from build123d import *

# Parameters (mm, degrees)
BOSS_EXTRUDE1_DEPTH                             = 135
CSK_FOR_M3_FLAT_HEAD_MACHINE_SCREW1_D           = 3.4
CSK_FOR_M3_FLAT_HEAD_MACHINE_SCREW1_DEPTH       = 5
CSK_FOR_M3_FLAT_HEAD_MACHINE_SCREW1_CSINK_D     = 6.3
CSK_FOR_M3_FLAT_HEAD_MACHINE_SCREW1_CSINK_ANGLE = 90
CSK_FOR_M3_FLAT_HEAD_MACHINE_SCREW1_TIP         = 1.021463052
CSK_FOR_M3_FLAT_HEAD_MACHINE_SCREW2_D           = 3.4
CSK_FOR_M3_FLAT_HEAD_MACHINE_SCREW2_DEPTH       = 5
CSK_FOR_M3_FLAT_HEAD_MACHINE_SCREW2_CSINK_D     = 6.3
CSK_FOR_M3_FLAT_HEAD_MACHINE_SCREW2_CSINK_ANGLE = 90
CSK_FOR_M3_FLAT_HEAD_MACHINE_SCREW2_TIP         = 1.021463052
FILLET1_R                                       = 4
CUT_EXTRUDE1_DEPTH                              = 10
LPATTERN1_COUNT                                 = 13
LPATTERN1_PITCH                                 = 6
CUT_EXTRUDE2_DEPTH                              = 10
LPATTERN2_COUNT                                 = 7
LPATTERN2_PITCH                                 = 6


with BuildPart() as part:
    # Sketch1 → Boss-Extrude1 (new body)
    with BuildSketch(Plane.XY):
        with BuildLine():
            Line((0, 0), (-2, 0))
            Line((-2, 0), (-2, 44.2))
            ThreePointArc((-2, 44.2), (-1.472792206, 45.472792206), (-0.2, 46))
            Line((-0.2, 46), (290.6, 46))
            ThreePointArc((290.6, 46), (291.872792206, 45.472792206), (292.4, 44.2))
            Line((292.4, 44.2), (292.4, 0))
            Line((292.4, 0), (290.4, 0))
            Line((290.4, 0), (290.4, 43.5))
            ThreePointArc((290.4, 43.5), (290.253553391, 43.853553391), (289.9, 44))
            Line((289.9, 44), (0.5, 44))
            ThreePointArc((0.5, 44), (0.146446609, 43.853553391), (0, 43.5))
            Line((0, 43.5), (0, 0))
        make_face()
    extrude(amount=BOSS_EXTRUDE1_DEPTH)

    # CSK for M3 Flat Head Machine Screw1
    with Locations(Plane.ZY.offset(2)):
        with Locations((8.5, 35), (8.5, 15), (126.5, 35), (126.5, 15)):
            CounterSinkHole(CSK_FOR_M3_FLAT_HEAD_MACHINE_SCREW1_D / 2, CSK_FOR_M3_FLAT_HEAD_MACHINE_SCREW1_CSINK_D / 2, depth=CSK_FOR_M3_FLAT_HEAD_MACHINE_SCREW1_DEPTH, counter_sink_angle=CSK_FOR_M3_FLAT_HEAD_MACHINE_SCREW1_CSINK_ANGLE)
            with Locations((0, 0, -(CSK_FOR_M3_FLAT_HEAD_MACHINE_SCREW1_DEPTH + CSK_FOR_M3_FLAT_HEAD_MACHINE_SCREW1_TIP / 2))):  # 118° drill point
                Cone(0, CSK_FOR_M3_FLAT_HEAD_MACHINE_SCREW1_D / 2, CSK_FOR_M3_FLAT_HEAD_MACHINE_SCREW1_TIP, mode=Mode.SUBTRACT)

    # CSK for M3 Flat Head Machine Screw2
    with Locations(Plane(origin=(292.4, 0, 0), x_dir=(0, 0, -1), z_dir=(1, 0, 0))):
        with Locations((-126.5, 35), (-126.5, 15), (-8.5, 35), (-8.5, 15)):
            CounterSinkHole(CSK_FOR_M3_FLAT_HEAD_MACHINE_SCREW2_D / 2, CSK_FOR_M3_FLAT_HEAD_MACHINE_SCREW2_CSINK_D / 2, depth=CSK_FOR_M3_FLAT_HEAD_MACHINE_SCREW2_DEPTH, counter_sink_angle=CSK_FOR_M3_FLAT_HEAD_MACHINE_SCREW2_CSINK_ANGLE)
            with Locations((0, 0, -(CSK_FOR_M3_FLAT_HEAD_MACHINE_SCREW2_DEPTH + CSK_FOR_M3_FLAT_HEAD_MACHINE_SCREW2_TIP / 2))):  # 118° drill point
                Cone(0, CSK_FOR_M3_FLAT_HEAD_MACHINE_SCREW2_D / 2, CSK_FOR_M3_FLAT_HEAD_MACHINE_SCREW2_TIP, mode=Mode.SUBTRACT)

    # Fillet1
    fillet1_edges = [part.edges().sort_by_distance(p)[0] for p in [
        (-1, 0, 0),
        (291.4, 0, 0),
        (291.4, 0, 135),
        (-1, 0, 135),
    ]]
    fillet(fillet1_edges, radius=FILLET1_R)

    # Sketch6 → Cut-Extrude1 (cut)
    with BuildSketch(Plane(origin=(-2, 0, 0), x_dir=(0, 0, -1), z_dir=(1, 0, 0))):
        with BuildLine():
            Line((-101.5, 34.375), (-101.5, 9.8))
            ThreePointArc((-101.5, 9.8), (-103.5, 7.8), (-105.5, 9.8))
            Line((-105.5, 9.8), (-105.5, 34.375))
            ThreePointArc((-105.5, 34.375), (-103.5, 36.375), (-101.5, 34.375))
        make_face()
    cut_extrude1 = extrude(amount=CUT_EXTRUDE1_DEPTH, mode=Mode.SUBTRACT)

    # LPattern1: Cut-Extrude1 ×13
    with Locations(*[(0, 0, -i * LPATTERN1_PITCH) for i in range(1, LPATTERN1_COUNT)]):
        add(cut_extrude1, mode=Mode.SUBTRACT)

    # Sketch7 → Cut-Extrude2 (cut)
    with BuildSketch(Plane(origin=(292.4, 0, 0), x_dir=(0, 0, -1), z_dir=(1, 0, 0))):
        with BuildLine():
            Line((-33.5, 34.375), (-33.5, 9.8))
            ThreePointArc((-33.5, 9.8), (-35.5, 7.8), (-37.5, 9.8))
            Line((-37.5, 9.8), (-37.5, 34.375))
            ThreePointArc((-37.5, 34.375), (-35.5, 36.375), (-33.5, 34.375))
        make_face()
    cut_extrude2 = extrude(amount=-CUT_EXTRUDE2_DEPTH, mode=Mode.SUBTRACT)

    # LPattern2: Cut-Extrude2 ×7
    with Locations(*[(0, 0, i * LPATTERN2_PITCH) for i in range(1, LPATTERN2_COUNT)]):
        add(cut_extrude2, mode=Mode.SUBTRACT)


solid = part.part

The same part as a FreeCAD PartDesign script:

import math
import FreeCAD as App
import Part
import Sketcher

V = App.Vector


def edges_at(feature, points):
    """Names of the edges that pass closest to the given points."""
    edges = feature.Shape.Edges
    near = lambda p: min(range(len(edges)), key=lambda i: edges[i].distToShape(Part.Vertex(*p))[0])
    return sorted({f"Edge{near(p) + 1}" for p in points})

doc = App.newDocument("Part")
params = doc.addObject("Spreadsheet::Sheet", "Params")
for row, (alias, value) in enumerate([
    ("sketch1_radius", "0.5 mm"),
    ("sketch1_radius2", "1.8 mm"),
    ("sketch1_width", "2 mm"),
    ("sketch1_width2", "289.4 mm"),
    ("sketch1_height", "43.5 mm"),
    ("pad1_length", "135 mm"),
    ("sketch2_diameter", "3.4 mm"),
    ("hole_diameter", "3.4 mm"),
    ("hole_depth", "5 mm"),
    ("hole_csink_diameter", "6.3 mm"),
    ("sketch3_diameter", "3.4 mm"),
    ("hole2_diameter", "3.4 mm"),
    ("hole2_depth", "5 mm"),
    ("hole2_csink_diameter", "6.3 mm"),
    ("fillet_radius", "4 mm"),
    ("sketch4_radius", "2 mm"),
    ("pocket1_length", "10 mm"),
    ("linearpattern_pitch", "6 mm"),
    ("sketch5_radius", "2 mm"),
    ("pocket2_length", "10 mm"),
    ("linearpattern2_pitch", "6 mm"),
], start=1):
    params.set(f"A{row}", alias)
    params.set(f"B{row}", "=" + value)
    params.setAlias(f"B{row}", alias)

body = doc.addObject("PartDesign::Body", "Body")

sketch1 = doc.addObject("Sketcher::SketchObject", "Sketch")
body.addObject(sketch1)
sketch1.AttachmentSupport = (doc.XY_Plane, [""])
sketch1.MapMode = "FlatFace"
sketch1.addGeometry(Part.LineSegment(V(-2, 0, 0), V(0, 0, 0)), False)
sketch1.addGeometry(Part.LineSegment(V(0, 0, 0), V(0, 43.5, 0)), False)
sketch1.addGeometry(Part.ArcOfCircle(Part.Circle(V(0.5, 43.5, 0), V(0, 0, 1), 0.5), math.radians(90), math.radians(180)), False)
sketch1.addGeometry(Part.LineSegment(V(0.5, 44, 0), V(289.9, 44, 0)), False)
sketch1.addGeometry(Part.ArcOfCircle(Part.Circle(V(289.9, 43.5, 0), V(0, 0, 1), 0.5), math.radians(0), math.radians(90)), False)
sketch1.addGeometry(Part.LineSegment(V(290.4, 43.5, 0), V(290.4, 0, 0)), False)
sketch1.addGeometry(Part.LineSegment(V(290.4, 0, 0), V(292.4, 0, 0)), False)
sketch1.addGeometry(Part.LineSegment(V(292.4, 0, 0), V(292.4, 44.2, 0)), False)
sketch1.addGeometry(Part.ArcOfCircle(Part.Circle(V(290.6, 44.2, 0), V(0, 0, 1), 1.8), math.radians(0), math.radians(90)), False)
sketch1.addGeometry(Part.LineSegment(V(290.6, 46, 0), V(-0.2, 46, 0)), False)
sketch1.addGeometry(Part.ArcOfCircle(Part.Circle(V(-0.2, 44.2, 0), V(0, 0, 1), 1.8), math.radians(90), math.radians(180)), False)
sketch1.addGeometry(Part.LineSegment(V(-2, 44.2, 0), V(-2, 0, 0)), False)
sketch1.addConstraint(Sketcher.Constraint("Coincident", 0, 2, 1, 1))
sketch1.addConstraint(Sketcher.Constraint("Tangent", 1, 2, 2, 2))
sketch1.addConstraint(Sketcher.Constraint("Tangent", 2, 1, 3, 1))
sketch1.addConstraint(Sketcher.Constraint("Tangent", 3, 2, 4, 2))
sketch1.addConstraint(Sketcher.Constraint("Tangent", 4, 1, 5, 1))
sketch1.addConstraint(Sketcher.Constraint("Coincident", 5, 2, 6, 1))
sketch1.addConstraint(Sketcher.Constraint("Coincident", 6, 2, 7, 1))
sketch1.addConstraint(Sketcher.Constraint("Tangent", 7, 2, 8, 1))
sketch1.addConstraint(Sketcher.Constraint("Tangent", 8, 2, 9, 1))
sketch1.addConstraint(Sketcher.Constraint("Tangent", 9, 2, 10, 1))
sketch1.addConstraint(Sketcher.Constraint("Tangent", 10, 2, 11, 1))
sketch1.addConstraint(Sketcher.Constraint("Coincident", 11, 2, 0, 1))
sketch1.addConstraint(Sketcher.Constraint("Horizontal", 0))
sketch1.addConstraint(Sketcher.Constraint("Vertical", 1))
sketch1.addConstraint(Sketcher.Constraint("Horizontal", 3))
sketch1.addConstraint(Sketcher.Constraint("Vertical", 5))
sketch1.addConstraint(Sketcher.Constraint("Horizontal", 6))
sketch1.addConstraint(Sketcher.Constraint("Vertical", 7))
sketch1.addConstraint(Sketcher.Constraint("Horizontal", 9))
sketch1.addConstraint(Sketcher.Constraint("Vertical", 11))
sketch1.addConstraint(Sketcher.Constraint("Coincident", 0, 2, -1, 1))
sketch1.addConstraint(Sketcher.Constraint("Equal", 2, 4))
sketch1.addConstraint(Sketcher.Constraint("Equal", 8, 10))
sketch1.addConstraint(Sketcher.Constraint("PointOnObject", 5, 2, -1))
sketch1.addConstraint(Sketcher.Constraint("Equal", 0, 6))
sketch1.addConstraint(Sketcher.Constraint("Radius", 2, 0.5))
sketch1.addConstraint(Sketcher.Constraint("Radius", 8, 1.8))
sketch1.addConstraint(Sketcher.Constraint("DistanceX", 0, 1, 0, 2, 2.0))
sketch1.addConstraint(Sketcher.Constraint("DistanceX", 3, 1, 3, 2, 289.4))
sketch1.addConstraint(Sketcher.Constraint("DistanceY", 1, 1, 1, 2, 43.5))
sketch1.addConstraint(Sketcher.Constraint("DistanceY", 7, 1, 7, 2, 44.2))
sketch1.setExpression("Constraints[25]", "Params.sketch1_radius")
sketch1.setExpression("Constraints[26]", "Params.sketch1_radius2")
sketch1.setExpression("Constraints[27]", "Params.sketch1_width")
sketch1.setExpression("Constraints[28]", "Params.sketch1_width2")
sketch1.setExpression("Constraints[29]", "Params.sketch1_height")
pad1 = doc.addObject("PartDesign::Pad", "Pad")
body.addObject(pad1)
pad1.Profile = sketch1
pad1.setExpression("Length", "Params.pad1_length")

sketch2 = doc.addObject("Sketcher::SketchObject", "Sketch001")
body.addObject(sketch2)
sketch2.AttachmentSupport = (doc.YZ_Plane, [""])
sketch2.MapMode = "FlatFace"
sketch2.AttachmentOffset = App.Placement(V(0, 0, -2), App.Rotation())
sketch2.addGeometry(Part.Circle(V(35, 8.5, 0), V(0, 0, 1), 1.7), False)
sketch2.addGeometry(Part.Circle(V(15, 8.5, 0), V(0, 0, 1), 1.7), False)
sketch2.addGeometry(Part.Circle(V(35, 126.5, 0), V(0, 0, 1), 1.7), False)
sketch2.addGeometry(Part.Circle(V(15, 126.5, 0), V(0, 0, 1), 1.7), False)
sketch2.addConstraint(Sketcher.Constraint("Equal", 0, 1))
sketch2.addConstraint(Sketcher.Constraint("Equal", 1, 2))
sketch2.addConstraint(Sketcher.Constraint("Equal", 2, 3))
sketch2.addConstraint(Sketcher.Constraint("Horizontal", 0, 3, 1, 3))
sketch2.addConstraint(Sketcher.Constraint("Horizontal", 2, 3, 3, 3))
sketch2.addConstraint(Sketcher.Constraint("Vertical", 0, 3, 2, 3))
sketch2.addConstraint(Sketcher.Constraint("Vertical", 1, 3, 3, 3))
sketch2.addConstraint(Sketcher.Constraint("Diameter", 0, 3.4))
sketch2.addConstraint(Sketcher.Constraint("DistanceX", -1, 1, 0, 3, 35.0))
sketch2.addConstraint(Sketcher.Constraint("DistanceX", -1, 1, 1, 3, 15.0))
sketch2.addConstraint(Sketcher.Constraint("DistanceY", 0, 3, 2, 3, 118.0))
sketch2.addConstraint(Sketcher.Constraint("DistanceY", -1, 1, 0, 3, 8.5))
sketch2.setExpression("Constraints[7]", "Params.sketch2_diameter")
doc.recompute()
hole = doc.addObject("PartDesign::Hole", "Hole")
body.addObject(hole)
hole.Profile = sketch2
hole.ThreadType = "None"
hole.setExpression("Diameter", "Params.hole_diameter")
hole.DepthType = "Dimension"
hole.setExpression("Depth", "Params.hole_depth")
hole.DrillPoint = "Angled"
hole.DrillPointAngle = 118
hole.HoleCutType = "Countersink"
hole.setExpression("HoleCutDiameter", "Params.hole_csink_diameter")
hole.HoleCutCountersinkAngle = 90
hole.Reversed = True

sketch3 = doc.addObject("Sketcher::SketchObject", "Sketch002")
body.addObject(sketch3)
sketch3.AttachmentSupport = (doc.YZ_Plane, [""])
sketch3.MapMode = "FlatFace"
sketch3.AttachmentOffset = App.Placement(V(0, 0, 292.4), App.Rotation())
sketch3.addGeometry(Part.Circle(V(35, 126.5, 0), V(0, 0, 1), 1.7), False)
sketch3.addGeometry(Part.Circle(V(15, 126.5, 0), V(0, 0, 1), 1.7), False)
sketch3.addGeometry(Part.Circle(V(35, 8.5, 0), V(0, 0, 1), 1.7), False)
sketch3.addGeometry(Part.Circle(V(15, 8.5, 0), V(0, 0, 1), 1.7), False)
sketch3.addConstraint(Sketcher.Constraint("Equal", 0, 1))
sketch3.addConstraint(Sketcher.Constraint("Equal", 1, 2))
sketch3.addConstraint(Sketcher.Constraint("Equal", 2, 3))
sketch3.addConstraint(Sketcher.Constraint("Horizontal", 0, 3, 1, 3))
sketch3.addConstraint(Sketcher.Constraint("Horizontal", 2, 3, 3, 3))
sketch3.addConstraint(Sketcher.Constraint("Vertical", 0, 3, 2, 3))
sketch3.addConstraint(Sketcher.Constraint("Vertical", 1, 3, 3, 3))
sketch3.addConstraint(Sketcher.Constraint("Diameter", 0, 3.4))
sketch3.addConstraint(Sketcher.Constraint("DistanceX", -1, 1, 0, 3, 35.0))
sketch3.addConstraint(Sketcher.Constraint("DistanceX", -1, 1, 1, 3, 15.0))
sketch3.addConstraint(Sketcher.Constraint("DistanceY", 2, 3, 0, 3, 118.0))
sketch3.addConstraint(Sketcher.Constraint("DistanceY", -1, 1, 0, 3, 126.5))
sketch3.setExpression("Constraints[7]", "Params.sketch3_diameter")
doc.recompute()
hole2 = doc.addObject("PartDesign::Hole", "Hole001")
body.addObject(hole2)
hole2.Profile = sketch3
hole2.ThreadType = "None"
hole2.setExpression("Diameter", "Params.hole2_diameter")
hole2.DepthType = "Dimension"
hole2.setExpression("Depth", "Params.hole2_depth")
hole2.DrillPoint = "Angled"
hole2.DrillPointAngle = 118
hole2.HoleCutType = "Countersink"
hole2.setExpression("HoleCutDiameter", "Params.hole2_csink_diameter")
hole2.HoleCutCountersinkAngle = 90
doc.recompute()

fillet = doc.addObject("PartDesign::Fillet", "Fillet")
body.addObject(fillet)
fillet.Base = (hole2, edges_at(hole2, [
    (-1, 0, 0),
    (291.4, 0, 0),
    (291.4, 0, 135),
    (-1, 0, 135),
]))
fillet.setExpression("Radius", "Params.fillet_radius")

sketch4 = doc.addObject("Sketcher::SketchObject", "Sketch003")
body.addObject(sketch4)
sketch4.AttachmentSupport = (doc.YZ_Plane, [""])
sketch4.MapMode = "FlatFace"
sketch4.AttachmentOffset = App.Placement(V(0, 0, -2), App.Rotation())
sketch4.addGeometry(Part.LineSegment(V(9.8, 101.5, 0), V(34.375, 101.5, 0)), False)
sketch4.addGeometry(Part.ArcOfCircle(Part.Circle(V(34.375, 103.5, 0), V(0, 0, 1), 2), math.radians(-90), math.radians(90)), False)
sketch4.addGeometry(Part.LineSegment(V(34.375, 105.5, 0), V(9.8, 105.5, 0)), False)
sketch4.addGeometry(Part.ArcOfCircle(Part.Circle(V(9.8, 103.5, 0), V(0, 0, 1), 2), math.radians(90), math.radians(270)), False)
sketch4.addConstraint(Sketcher.Constraint("Tangent", 0, 2, 1, 1))
sketch4.addConstraint(Sketcher.Constraint("Tangent", 1, 2, 2, 1))
sketch4.addConstraint(Sketcher.Constraint("Tangent", 2, 2, 3, 1))
sketch4.addConstraint(Sketcher.Constraint("Tangent", 3, 2, 0, 1))
sketch4.addConstraint(Sketcher.Constraint("Horizontal", 0))
sketch4.addConstraint(Sketcher.Constraint("Horizontal", 2))
sketch4.addConstraint(Sketcher.Constraint("Radius", 1, 2.0))
sketch4.addConstraint(Sketcher.Constraint("DistanceY", -1, 1, 1, 3, 103.5))
sketch4.addConstraint(Sketcher.Constraint("DistanceX", -1, 1, 3, 3, 9.8))
sketch4.addConstraint(Sketcher.Constraint("DistanceX", 0, 1, 0, 2, 24.575))
sketch4.setExpression("Constraints[6]", "Params.sketch4_radius")
pocket1 = doc.addObject("PartDesign::Pocket", "Pocket")
body.addObject(pocket1)
pocket1.Profile = sketch4
pocket1.setExpression("Length", "Params.pocket1_length")
pocket1.Reversed = True
doc.recompute()

linearpattern = doc.addObject("PartDesign::LinearPattern", "LinearPattern")
body.addObject(linearpattern)
linearpattern.Originals = [pocket1]
linearpattern.Direction = (doc.Z_Axis, [""])
linearpattern.Mode = "offset"
linearpattern.setExpression("Offset", "Params.linearpattern_pitch")
linearpattern.Occurrences = 13
linearpattern.Reversed = True
body.Tip = linearpattern

sketch5 = doc.addObject("Sketcher::SketchObject", "Sketch004")
body.addObject(sketch5)
sketch5.AttachmentSupport = (doc.YZ_Plane, [""])
sketch5.MapMode = "FlatFace"
sketch5.AttachmentOffset = App.Placement(V(0, 0, 292.4), App.Rotation())
sketch5.addGeometry(Part.LineSegment(V(9.8, 33.5, 0), V(34.375, 33.5, 0)), False)
sketch5.addGeometry(Part.ArcOfCircle(Part.Circle(V(34.375, 35.5, 0), V(0, 0, 1), 2), math.radians(-90), math.radians(90)), False)
sketch5.addGeometry(Part.LineSegment(V(34.375, 37.5, 0), V(9.8, 37.5, 0)), False)
sketch5.addGeometry(Part.ArcOfCircle(Part.Circle(V(9.8, 35.5, 0), V(0, 0, 1), 2), math.radians(90), math.radians(270)), False)
sketch5.addConstraint(Sketcher.Constraint("Tangent", 0, 2, 1, 1))
sketch5.addConstraint(Sketcher.Constraint("Tangent", 1, 2, 2, 1))
sketch5.addConstraint(Sketcher.Constraint("Tangent", 2, 2, 3, 1))
sketch5.addConstraint(Sketcher.Constraint("Tangent", 3, 2, 0, 1))
sketch5.addConstraint(Sketcher.Constraint("Horizontal", 0))
sketch5.addConstraint(Sketcher.Constraint("Horizontal", 2))
sketch5.addConstraint(Sketcher.Constraint("Radius", 1, 2.0))
sketch5.addConstraint(Sketcher.Constraint("DistanceY", -1, 1, 1, 3, 35.5))
sketch5.addConstraint(Sketcher.Constraint("DistanceX", -1, 1, 3, 3, 9.8))
sketch5.addConstraint(Sketcher.Constraint("DistanceX", 0, 1, 0, 2, 24.575))
sketch5.setExpression("Constraints[6]", "Params.sketch5_radius")
pocket2 = doc.addObject("PartDesign::Pocket", "Pocket001")
body.addObject(pocket2)
pocket2.Profile = sketch5
pocket2.setExpression("Length", "Params.pocket2_length")
doc.recompute()

linearpattern2 = doc.addObject("PartDesign::LinearPattern", "LinearPattern001")
body.addObject(linearpattern2)
linearpattern2.Originals = [pocket2]
linearpattern2.Direction = (doc.Z_Axis, [""])
linearpattern2.Mode = "offset"
linearpattern2.setExpression("Offset", "Params.linearpattern2_pitch")
linearpattern2.Occurrences = 7
body.Tip = linearpattern2

doc.recompute()
